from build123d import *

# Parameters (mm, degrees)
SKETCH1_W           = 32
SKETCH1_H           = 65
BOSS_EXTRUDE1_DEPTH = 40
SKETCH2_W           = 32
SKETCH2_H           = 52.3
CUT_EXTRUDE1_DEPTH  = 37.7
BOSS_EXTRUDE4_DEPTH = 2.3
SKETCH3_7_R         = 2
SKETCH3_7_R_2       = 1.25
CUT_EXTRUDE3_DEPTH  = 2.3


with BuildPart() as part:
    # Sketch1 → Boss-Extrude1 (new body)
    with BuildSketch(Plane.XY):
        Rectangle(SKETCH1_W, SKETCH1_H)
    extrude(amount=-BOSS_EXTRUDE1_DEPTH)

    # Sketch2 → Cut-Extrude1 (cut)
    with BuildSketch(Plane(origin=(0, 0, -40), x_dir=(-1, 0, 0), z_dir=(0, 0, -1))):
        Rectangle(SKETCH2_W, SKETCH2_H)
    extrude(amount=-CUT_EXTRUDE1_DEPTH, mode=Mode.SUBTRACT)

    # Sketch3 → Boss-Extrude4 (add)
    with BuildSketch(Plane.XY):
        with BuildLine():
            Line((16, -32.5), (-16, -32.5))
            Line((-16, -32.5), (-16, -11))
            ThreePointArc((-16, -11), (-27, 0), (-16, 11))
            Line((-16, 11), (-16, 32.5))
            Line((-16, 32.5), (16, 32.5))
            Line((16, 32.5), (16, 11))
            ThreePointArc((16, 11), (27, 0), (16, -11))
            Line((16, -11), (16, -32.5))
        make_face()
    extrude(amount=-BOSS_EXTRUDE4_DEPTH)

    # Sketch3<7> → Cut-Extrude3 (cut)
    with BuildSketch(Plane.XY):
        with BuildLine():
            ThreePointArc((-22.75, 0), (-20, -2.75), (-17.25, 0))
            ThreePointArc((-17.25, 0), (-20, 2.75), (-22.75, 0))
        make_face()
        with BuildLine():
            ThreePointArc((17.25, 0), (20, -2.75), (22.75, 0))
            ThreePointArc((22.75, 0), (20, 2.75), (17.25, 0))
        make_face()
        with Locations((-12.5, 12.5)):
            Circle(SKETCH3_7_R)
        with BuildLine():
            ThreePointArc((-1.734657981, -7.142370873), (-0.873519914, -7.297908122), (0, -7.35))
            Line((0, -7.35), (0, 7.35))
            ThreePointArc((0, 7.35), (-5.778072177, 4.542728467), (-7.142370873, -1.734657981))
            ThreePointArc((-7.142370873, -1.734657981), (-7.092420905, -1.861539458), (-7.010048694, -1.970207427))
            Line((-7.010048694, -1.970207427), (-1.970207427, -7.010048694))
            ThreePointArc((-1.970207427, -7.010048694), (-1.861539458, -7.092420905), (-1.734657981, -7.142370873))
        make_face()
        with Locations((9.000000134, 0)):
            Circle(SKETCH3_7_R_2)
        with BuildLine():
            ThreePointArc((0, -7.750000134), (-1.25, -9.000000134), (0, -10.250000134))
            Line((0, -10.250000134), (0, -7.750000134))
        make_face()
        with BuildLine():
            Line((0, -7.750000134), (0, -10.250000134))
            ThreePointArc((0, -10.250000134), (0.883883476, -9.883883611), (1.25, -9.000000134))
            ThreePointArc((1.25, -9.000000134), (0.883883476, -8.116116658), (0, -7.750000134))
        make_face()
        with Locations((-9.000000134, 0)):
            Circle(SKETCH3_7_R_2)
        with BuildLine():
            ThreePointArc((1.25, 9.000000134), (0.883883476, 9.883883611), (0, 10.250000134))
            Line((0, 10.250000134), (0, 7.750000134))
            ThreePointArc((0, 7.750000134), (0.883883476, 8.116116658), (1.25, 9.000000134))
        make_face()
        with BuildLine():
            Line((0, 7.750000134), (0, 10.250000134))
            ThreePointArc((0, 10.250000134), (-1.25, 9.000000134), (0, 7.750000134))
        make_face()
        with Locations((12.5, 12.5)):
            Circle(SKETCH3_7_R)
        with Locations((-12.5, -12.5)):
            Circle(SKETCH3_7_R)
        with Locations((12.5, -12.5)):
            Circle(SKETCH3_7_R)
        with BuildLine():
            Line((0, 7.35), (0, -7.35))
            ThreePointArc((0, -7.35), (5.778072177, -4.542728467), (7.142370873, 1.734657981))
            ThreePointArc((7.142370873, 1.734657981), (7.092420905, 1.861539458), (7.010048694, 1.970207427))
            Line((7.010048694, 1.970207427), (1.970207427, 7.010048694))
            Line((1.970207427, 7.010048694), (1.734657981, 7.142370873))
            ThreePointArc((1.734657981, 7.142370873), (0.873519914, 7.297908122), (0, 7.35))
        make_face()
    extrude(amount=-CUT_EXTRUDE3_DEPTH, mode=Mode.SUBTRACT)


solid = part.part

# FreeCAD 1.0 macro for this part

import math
import FreeCAD as App
import Part
import Sketcher

V = App.Vector
Q = App.Units.Quantity

doc = App.newDocument("Part")
body = doc.addObject("PartDesign::Body", "Body")

# Sketch on XY plane
sketch1 = body.newObject("Sketcher::SketchObject", "Sketch")
sketch1.AttachmentSupport = (doc.getObject("XY_Plane"), [""])
sketch1.MapMode = "FlatFace"
sketch1.addGeometry([
    Part.LineSegment(V(-16, 32, 0), V(-16, -32, 0)),
    Part.LineSegment(V(-16, -32, 0), V(16, -32, 0)),
    Part.LineSegment(V(16, -32, 0), V(16, 32, 0)),
    Part.LineSegment(V(16, 32, 0), V(-16, 32, 0)),
], False)
sketch1.addConstraint([
    Sketcher.Constraint("Coincident", 0, 2, 1, 1),
    Sketcher.Constraint("Coincident", 1, 2, 2, 1),
    Sketcher.Constraint("Coincident", 2, 2, 3, 1),
    Sketcher.Constraint("Coincident", 3, 2, 0, 1),
    Sketcher.Constraint("Vertical", 0),
    Sketcher.Constraint("Horizontal", 1),
    Sketcher.Constraint("Vertical", 2),
    Sketcher.Constraint("Horizontal", 3),
    Sketcher.Constraint("Symmetric", 0, 2, 2, 2, -1, 1),
    Sketcher.Constraint("DistanceX", 1, 1, 1, 2, 32.0),
    Sketcher.Constraint("DistanceY", 0, 2, 0, 1, 65.0),
])
pad1 = body.newObject("PartDesign::Pad", "Pad")
pad1.Profile = sketch1
pad1.Length = 40
pad1.Reversed = True

# Sketch on XY plane
sketch2 = body.newObject("Sketcher::SketchObject", "Sketch001")
sketch2.AttachmentSupport = (doc.getObject("XY_Plane"), [""])
sketch2.MapMode = "FlatFace"
sketch2.AttachmentOffset = App.Placement(V(0, 0, -40), App.Rotation())
sketch2.addGeometry([
    Part.LineSegment(V(16, 26, 0), V(16, -26, 0)),
    Part.LineSegment(V(16, -26, 0), V(-16, -26, 0)),
    Part.LineSegment(V(-16, -26, 0), V(-16, 26, 0)),
    Part.LineSegment(V(-16, 26, 0), V(16, 26, 0)),
], False)
sketch2.addConstraint([
    Sketcher.Constraint("Coincident", 0, 2, 1, 1),
    Sketcher.Constraint("Coincident", 1, 2, 2, 1),
    Sketcher.Constraint("Coincident", 2, 2, 3, 1),
    Sketcher.Constraint("Coincident", 3, 2, 0, 1),
    Sketcher.Constraint("Vertical", 0),
    Sketcher.Constraint("Horizontal", 1),
    Sketcher.Constraint("Vertical", 2),
    Sketcher.Constraint("Horizontal", 3),
    Sketcher.Constraint("Symmetric", 0, 2, 2, 2, -1, 1),
    Sketcher.Constraint("DistanceX", 1, 2, 1, 1, 32.0),
    Sketcher.Constraint("DistanceY", 0, 2, 0, 1, 52.3),
])
pocket1 = body.newObject("PartDesign::Pocket", "Pocket")
pocket1.Profile = sketch2
pocket1.Length = 37.7
pocket1.Reversed = True

# Sketch on XY plane
sketch3 = body.newObject("Sketcher::SketchObject", "Sketch002")
sketch3.AttachmentSupport = (doc.getObject("XY_Plane"), [""])
sketch3.MapMode = "FlatFace"
sketch3.addGeometry([
    Part.LineSegment(V(-16, -32, 0), V(16, -32, 0)),  # 0
    Part.LineSegment(V(16, -32, 0), V(16, -11, 0)),  # 1
    Part.ArcOfCircle(Part.Circle(V(16, 0, 0), V(0, 0, 1), 11), math.radians(-90), math.radians(90)),  # 2
    Part.LineSegment(V(16, 11, 0), V(16, 32, 0)),  # 3
    Part.LineSegment(V(16, 32, 0), V(-16, 32, 0)),  # 4
    Part.LineSegment(V(-16, 32, 0), V(-16, 11, 0)),  # 5
    Part.ArcOfCircle(Part.Circle(V(-16, 0, 0), V(0, 0, 1), 11), math.radians(90), math.radians(270)),  # 6
    Part.LineSegment(V(-16, -11, 0), V(-16, -32, 0)),  # 7
], False)
sketch3.addConstraint([
    Sketcher.Constraint("Coincident", 0, 2, 1, 1),
    Sketcher.Constraint("Coincident", 1, 2, 2, 1),
    Sketcher.Constraint("Coincident", 2, 2, 3, 1),
    Sketcher.Constraint("Coincident", 3, 2, 4, 1),
    Sketcher.Constraint("Coincident", 4, 2, 5, 1),
    Sketcher.Constraint("Coincident", 5, 2, 6, 1),
    Sketcher.Constraint("Coincident", 6, 2, 7, 1),
    Sketcher.Constraint("Coincident", 7, 2, 0, 1),
    Sketcher.Constraint("Horizontal", 0),
    Sketcher.Constraint("Vertical", 1),
    Sketcher.Constraint("Vertical", 3),
    Sketcher.Constraint("Horizontal", 4),
    Sketcher.Constraint("Vertical", 5),
    Sketcher.Constraint("Vertical", 7),
    Sketcher.Constraint("Equal", 2, 6),
    Sketcher.Constraint("Symmetric", 2, 3, 6, 3, -1, 1),
    Sketcher.Constraint("Symmetric", 0, 2, 4, 2, -1, 1),
    Sketcher.Constraint("Symmetric", 2, 2, 5, 2, -2),
    Sketcher.Constraint("Vertical", 2, 3, 0, 2),
    Sketcher.Constraint("Vertical", 5, 2, 6, 2),
    Sketcher.Constraint("Radius", 2, 11.0),
    Sketcher.Constraint("DistanceX", 0, 1, 0, 2, 32.0),
    Sketcher.Constraint("DistanceY", 1, 1, 1, 2, 21.5),
])
pad2 = body.newObject("PartDesign::Pad", "Pad001")
pad2.Profile = sketch3
pad2.Length = 2.3
pad2.Reversed = True

# Sketch on XY plane
sketch4 = body.newObject("Sketcher::SketchObject", "Sketch003")
sketch4.AttachmentSupport = (doc.getObject("XY_Plane"), [""])
sketch4.MapMode = "FlatFace"
sketch4.addGeometry([
    Part.Circle(V(-20, 0, 0), V(0, 0, 1), 2.75),  # 0
    Part.Circle(V(20, 0, 0), V(0, 0, 1), 2.75),  # 1
    Part.Circle(V(-12.5, 12.5, 0), V(0, 0, 1), 2),  # 2
    Part.ArcOfCircle(Part.Circle(V(0, 0, 0), V(0, 0, 1), 7.35), math.radians(-103.65), math.radians(-90)),  # 3
    Part.ArcOfCircle(Part.Circle(V(0, 0, 0), V(0, 0, 1), 7.35), math.radians(-90), math.radians(14)),  # 4
    Part.ArcOfCircle(Part.Circle(V(6.66, 1.62, 0), V(0, 0, 1), 0.5), math.radians(14), math.radians(45)),  # 5
    Part.LineSegment(V(7.01, 1.97, 0), V(1.97, 7.01, 0)),  # 6
    Part.LineSegment(V(1.97, 7.01, 0), V(1.73, 7.14, 0)),  # 7
    Part.ArcOfCircle(Part.Circle(V(0, 0, 0), V(0, 0, 1), 7.35), math.radians(76.35), math.radians(90)),  # 8
    Part.ArcOfCircle(Part.Circle(V(0, 0, 0), V(0, 0, 1), 7.35), math.radians(90), math.radians(194)),  # 9
    Part.ArcOfCircle(Part.Circle(V(-6.66, -1.62, 0), V(0, 0, 1), 0.5), math.radians(-166), math.radians(-135)),  # 10
    Part.LineSegment(V(-7.01, -1.97, 0), V(-1.97, -7.01, 0)),  # 11
    Part.ArcOfCircle(Part.Circle(V(-1.62, -6.66, 0), V(0, 0, 1), 0.5), math.radians(-135), math.radians(-104)),  # 12
    Part.Circle(V(9, 0, 0), V(0, 0, 1), 1.25),  # 13
    Part.ArcOfCircle(Part.Circle(V(0, -9, 0), V(0, 0, 1), 1.25), math.radians(90), math.radians(270)),  # 14
    Part.ArcOfCircle(Part.Circle(V(0, -9, 0), V(0, 0, 1), 1.25), math.radians(-90), math.radians(0)),  # 15
    Part.ArcOfCircle(Part.Circle(V(0, -9, 0), V(0, 0, 1), 1.25), math.radians(0), math.radians(90)),  # 16
    Part.Circle(V(-9, 0, 0), V(0, 0, 1), 1.25),  # 17
    Part.ArcOfCircle(Part.Circle(V(0, 9, 0), V(0, 0, 1), 1.25), math.radians(0), math.radians(90)),  # 18
    Part.ArcOfCircle(Part.Circle(V(0, 9, 0), V(0, 0, 1), 1.25), math.radians(90), math.radians(270)),  # 19
    Part.ArcOfCircle(Part.Circle(V(0, 9, 0), V(0, 0, 1), 1.25), math.radians(-90), math.radians(0)),  # 20
    Part.Circle(V(12.5, 12.5, 0), V(0, 0, 1), 2),  # 21
    Part.Circle(V(-12.5, -12.5, 0), V(0, 0, 1), 2),  # 22
    Part.Circle(V(12.5, -12.5, 0), V(0, 0, 1), 2),  # 23
], False)
sketch4.addConstraint([
    Sketcher.Constraint("Tangent", 3, 2, 4, 1),
    Sketcher.Constraint("Tangent", 4, 2, 5, 1),
    Sketcher.Constraint("Tangent", 5, 2, 6, 1),
    Sketcher.Constraint("Coincident", 6, 2, 7, 1),
    Sketcher.Constraint("Coincident", 7, 2, 8, 1),
    Sketcher.Constraint("Tangent", 8, 2, 9, 1),
    Sketcher.Constraint("Tangent", 9, 2, 10, 1),
    Sketcher.Constraint("Tangent", 10, 2, 11, 1),
    Sketcher.Constraint("Tangent", 11, 2, 12, 1),
    Sketcher.Constraint("Tangent", 12, 2, 3, 1),
    Sketcher.Constraint("Tangent", 14, 2, 15, 1),
    Sketcher.Constraint("Tangent", 15, 2, 16, 1),
    Sketcher.Constraint("Tangent", 16, 2, 14, 1),
    Sketcher.Constraint("Tangent", 18, 2, 19, 1),
    Sketcher.Constraint("Tangent", 19, 2, 20, 1),
    Sketcher.Constraint("Tangent", 20, 2, 18, 1),
    Sketcher.Constraint("Coincident", 3, 3, -1, 1),
    Sketcher.Constraint("Coincident", 8, 3, -1, 1),
    Sketcher.Constraint("Equal", 0, 1),
    Sketcher.Constraint("Equal", 3, 4),
    Sketcher.Constraint("Equal", 4, 8),
    Sketcher.Constraint("Equal", 8, 9),
    Sketcher.Constraint("Equal", 5, 10),
    Sketcher.Constraint("Equal", 10, 12),
    Sketcher.Constraint("Equal", 13, 14),
    Sketcher.Constraint("Equal", 16, 17),
    Sketcher.Constraint("Equal", 17, 18),
    Sketcher.Constraint("Equal", 2, 21),
    Sketcher.Constraint("Equal", 21, 22),
    Sketcher.Constraint("Equal", 22, 23),
    Sketcher.Constraint("Symmetric", 0, 3, 1, 3, -1, 1),
    Sketcher.Constraint("Symmetric", 13, 3, 17, 3, -1, 1),
    Sketcher.Constraint("Symmetric", 14, 3, 18, 3, -1, 1),
    Sketcher.Constraint("Symmetric", 21, 3, 22, 3, -1, 1),
    Sketcher.Constraint("Symmetric", 2, 3, 23, 3, -1, 1),
    Sketcher.Constraint("Symmetric", 5, 2, 10, 2, -1, 1),
    Sketcher.Constraint("Symmetric", 2, 3, 21, 3, -2),
    Sketcher.Constraint("Symmetric", 15, 2, 20, 2, -1),
    Sketcher.Constraint("PointOnObject", 0, 3, -1),
    Sketcher.Constraint("PointOnObject", 13, 3, -1),
    Sketcher.Constraint("PointOnObject", 3, 2, -2),
    Sketcher.Constraint("PointOnObject", 8, 2, -2),
    Sketcher.Constraint("PointOnObject", 14, 2, -2),
    Sketcher.Constraint("PointOnObject", 16, 2, -2),
    Sketcher.Constraint("PointOnObject", 18, 2, -2),
    Sketcher.Constraint("PointOnObject", 19, 2, -2),
    Sketcher.Constraint("Horizontal", 16, 3, 15, 2),
    Sketcher.Constraint("Equal", 6, 11),
    Sketcher.Constraint("Diameter", 2, 4.0),
    Sketcher.Constraint("Diameter", 0, 5.5),
    Sketcher.Constraint("Diameter", 13, 2.5),
    Sketcher.Constraint("Radius", 5, 0.5),
    Sketcher.Constraint("Angle", 6, Q("135 deg")),
    Sketcher.Constraint("Radius", 3, 7.35),
    Sketcher.Constraint("DistanceX", 0, 3, -1, 1, 20.0),
    Sketcher.Constraint("DistanceX", -1, 1, 13, 3, 9.0),
    Sketcher.Constraint("DistanceY", 14, 3, -1, 1, 9.0),
    Sketcher.Constraint("DistanceX", 2, 3, -1, 1, 12.5),
    Sketcher.Constraint("DistanceY", -1, 1, 2, 3, 12.5),
    Sketcher.Constraint("Distance", 6, 7.127412),
    Sketcher.Constraint("Distance", 7, 0.270172),
])
pocket2 = body.newObject("PartDesign::Pocket", "Pocket001")
pocket2.Profile = sketch4
pocket2.Length = 2.3

doc.recompute()
